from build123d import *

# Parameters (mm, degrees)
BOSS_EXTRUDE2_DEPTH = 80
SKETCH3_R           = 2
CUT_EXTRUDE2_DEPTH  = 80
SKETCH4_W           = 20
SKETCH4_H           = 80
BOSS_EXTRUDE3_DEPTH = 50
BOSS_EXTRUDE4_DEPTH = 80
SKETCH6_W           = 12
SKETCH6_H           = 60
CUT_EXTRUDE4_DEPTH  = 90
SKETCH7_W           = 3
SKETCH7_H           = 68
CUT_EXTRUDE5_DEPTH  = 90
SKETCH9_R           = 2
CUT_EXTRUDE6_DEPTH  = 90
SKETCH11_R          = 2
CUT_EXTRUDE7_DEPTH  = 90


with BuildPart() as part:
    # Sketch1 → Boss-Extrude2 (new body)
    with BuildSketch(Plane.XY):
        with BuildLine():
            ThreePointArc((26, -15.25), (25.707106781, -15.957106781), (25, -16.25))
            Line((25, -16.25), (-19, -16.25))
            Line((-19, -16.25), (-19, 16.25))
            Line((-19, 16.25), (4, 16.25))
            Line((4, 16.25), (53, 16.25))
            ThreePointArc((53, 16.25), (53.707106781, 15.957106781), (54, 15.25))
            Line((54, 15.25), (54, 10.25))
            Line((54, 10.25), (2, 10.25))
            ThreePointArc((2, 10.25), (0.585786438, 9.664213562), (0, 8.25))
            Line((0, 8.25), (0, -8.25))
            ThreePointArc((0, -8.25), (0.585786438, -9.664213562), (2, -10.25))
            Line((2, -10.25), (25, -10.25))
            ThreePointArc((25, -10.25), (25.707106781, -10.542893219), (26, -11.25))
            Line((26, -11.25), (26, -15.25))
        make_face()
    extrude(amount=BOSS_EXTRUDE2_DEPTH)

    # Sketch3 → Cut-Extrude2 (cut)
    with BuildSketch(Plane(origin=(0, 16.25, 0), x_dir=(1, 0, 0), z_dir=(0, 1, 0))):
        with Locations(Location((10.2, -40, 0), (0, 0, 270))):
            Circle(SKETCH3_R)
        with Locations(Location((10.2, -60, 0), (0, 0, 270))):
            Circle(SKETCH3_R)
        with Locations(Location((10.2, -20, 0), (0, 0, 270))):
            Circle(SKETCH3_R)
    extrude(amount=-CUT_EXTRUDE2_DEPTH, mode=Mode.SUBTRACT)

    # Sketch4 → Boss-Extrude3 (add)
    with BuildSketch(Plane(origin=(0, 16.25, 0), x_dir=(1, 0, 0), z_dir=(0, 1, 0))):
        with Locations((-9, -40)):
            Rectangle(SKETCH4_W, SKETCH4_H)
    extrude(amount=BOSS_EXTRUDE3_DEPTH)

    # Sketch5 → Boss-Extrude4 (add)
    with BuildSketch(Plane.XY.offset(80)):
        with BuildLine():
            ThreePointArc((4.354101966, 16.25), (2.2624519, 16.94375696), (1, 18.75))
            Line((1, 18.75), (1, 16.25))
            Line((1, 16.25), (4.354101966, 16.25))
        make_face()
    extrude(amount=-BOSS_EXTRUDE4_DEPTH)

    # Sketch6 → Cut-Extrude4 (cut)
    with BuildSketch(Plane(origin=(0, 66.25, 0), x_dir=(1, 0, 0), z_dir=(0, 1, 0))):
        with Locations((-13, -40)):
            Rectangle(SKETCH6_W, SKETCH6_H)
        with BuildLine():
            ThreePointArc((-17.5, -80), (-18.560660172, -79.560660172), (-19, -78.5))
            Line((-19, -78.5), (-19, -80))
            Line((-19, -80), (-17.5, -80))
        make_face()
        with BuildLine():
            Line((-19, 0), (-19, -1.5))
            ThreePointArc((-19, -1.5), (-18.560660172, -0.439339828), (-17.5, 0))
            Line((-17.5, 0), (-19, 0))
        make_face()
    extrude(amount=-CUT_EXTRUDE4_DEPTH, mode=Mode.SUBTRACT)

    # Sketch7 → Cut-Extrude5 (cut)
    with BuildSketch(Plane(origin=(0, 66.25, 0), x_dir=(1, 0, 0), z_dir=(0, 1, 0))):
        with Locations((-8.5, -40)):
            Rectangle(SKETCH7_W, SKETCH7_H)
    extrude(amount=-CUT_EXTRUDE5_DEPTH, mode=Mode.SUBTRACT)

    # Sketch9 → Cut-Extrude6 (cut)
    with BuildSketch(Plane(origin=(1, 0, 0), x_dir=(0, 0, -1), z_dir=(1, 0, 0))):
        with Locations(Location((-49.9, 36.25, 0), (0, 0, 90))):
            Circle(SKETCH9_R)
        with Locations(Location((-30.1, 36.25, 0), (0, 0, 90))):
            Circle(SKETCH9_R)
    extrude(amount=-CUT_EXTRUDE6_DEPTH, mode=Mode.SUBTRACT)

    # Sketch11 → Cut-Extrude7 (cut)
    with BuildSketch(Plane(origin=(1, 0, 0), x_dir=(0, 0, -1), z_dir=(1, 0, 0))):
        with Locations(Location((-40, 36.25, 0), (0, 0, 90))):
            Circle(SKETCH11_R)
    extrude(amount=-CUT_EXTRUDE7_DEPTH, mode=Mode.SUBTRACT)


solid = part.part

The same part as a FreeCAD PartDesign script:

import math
import FreeCAD as App
import Part
import Sketcher
Q = App.Units.Quantity

doc = App.newDocument("Part")
body = doc.addObject("PartDesign::Body", "Body")

sketch1 = body.newObject("Sketcher::SketchObject", "Sketch")
sketch1.AttachmentSupport = (doc.getObject("XY_Plane"), [""])
sketch1.MapMode = "FlatFace"
sketch1.addGeometry(Part.ArcOfCircle(Part.Circle(App.Vector(25, -15.25, 0), App.Vector(0, 0, 1), 1), math.radians(-90), math.radians(0)), False)
sketch1.addGeometry(Part.LineSegment(App.Vector(26, -15.25, 0), App.Vector(26, -11.25, 0)), False)
sketch1.addGeometry(Part.ArcOfCircle(Part.Circle(App.Vector(25, -11.25, 0), App.Vector(0, 0, 1), 1), math.radians(0), math.radians(90)), False)
sketch1.addGeometry(Part.LineSegment(App.Vector(25, -10.25, 0), App.Vector(2, -10.25, 0)), False)
sketch1.addGeometry(Part.ArcOfCircle(Part.Circle(App.Vector(2, -8.25, 0), App.Vector(0, 0, 1), 2), math.radians(-180), math.radians(-90)), False)
sketch1.addGeometry(Part.LineSegment(App.Vector(0, -8.25, 0), App.Vector(0, 8.25, 0)), False)
sketch1.addGeometry(Part.ArcOfCircle(Part.Circle(App.Vector(2, 8.25, 0), App.Vector(0, 0, 1), 2), math.radians(90), math.radians(180)), False)
sketch1.addGeometry(Part.LineSegment(App.Vector(2, 10.25, 0), App.Vector(54, 10.25, 0)), False)
sketch1.addGeometry(Part.LineSegment(App.Vector(54, 10.25, 0), App.Vector(54, 15.25, 0)), False)
sketch1.addGeometry(Part.ArcOfCircle(Part.Circle(App.Vector(53, 15.25, 0), App.Vector(0, 0, 1), 1), math.radians(0), math.radians(90)), False)
sketch1.addGeometry(Part.LineSegment(App.Vector(53, 16.25, 0), App.Vector(-19, 16.25, 0)), False)
sketch1.addGeometry(Part.LineSegment(App.Vector(-19, 16.25, 0), App.Vector(-19, -16.25, 0)), False)
sketch1.addGeometry(Part.LineSegment(App.Vector(-19, -16.25, 0), App.Vector(25, -16.25, 0)), False)
sketch1.addConstraint(Sketcher.Constraint("Tangent", 0, 2, 1, 1))
sketch1.addConstraint(Sketcher.Constraint("Tangent", 1, 2, 2, 1))
sketch1.addConstraint(Sketcher.Constraint("Tangent", 2, 2, 3, 1))
sketch1.addConstraint(Sketcher.Constraint("Tangent", 3, 2, 4, 2))
sketch1.addConstraint(Sketcher.Constraint("Tangent", 4, 1, 5, 1))
sketch1.addConstraint(Sketcher.Constraint("Tangent", 5, 2, 6, 2))
sketch1.addConstraint(Sketcher.Constraint("Tangent", 6, 1, 7, 1))
sketch1.addConstraint(Sketcher.Constraint("Coincident", 7, 2, 8, 1))
sketch1.addConstraint(Sketcher.Constraint("Tangent", 8, 2, 9, 1))
sketch1.addConstraint(Sketcher.Constraint("Tangent", 9, 2, 10, 1))
sketch1.addConstraint(Sketcher.Constraint("Coincident", 10, 2, 11, 1))
sketch1.addConstraint(Sketcher.Constraint("Coincident", 11, 2, 12, 1))
sketch1.addConstraint(Sketcher.Constraint("Tangent", 12, 2, 0, 1))
sketch1.addConstraint(Sketcher.Constraint("Vertical", 1))
sketch1.addConstraint(Sketcher.Constraint("Horizontal", 3))
sketch1.addConstraint(Sketcher.Constraint("Vertical", 5))
sketch1.addConstraint(Sketcher.Constraint("Horizontal", 7))
sketch1.addConstraint(Sketcher.Constraint("Vertical", 8))
sketch1.addConstraint(Sketcher.Constraint("Horizontal", 10))
sketch1.addConstraint(Sketcher.Constraint("Vertical", 11))
sketch1.addConstraint(Sketcher.Constraint("Horizontal", 12))
sketch1.addConstraint(Sketcher.Constraint("Equal", 0, 2))
sketch1.addConstraint(Sketcher.Constraint("Equal", 4, 6))
sketch1.addConstraint(Sketcher.Constraint("Equal", 2, 9))
sketch1.addConstraint(Sketcher.Constraint("Symmetric", 4, 1, 5, 2, -1, 1))
sketch1.addConstraint(Sketcher.Constraint("Radius", 0, Q("1 mm")))
sketch1.addConstraint(Sketcher.Constraint("Radius", 4, Q("2 mm")))
sketch1.addConstraint(Sketcher.Constraint("DistanceX", 3, 2, 3, 1, Q("23 mm")))
sketch1.addConstraint(Sketcher.Constraint("DistanceX", 7, 1, 7, 2, Q("52 mm")))
sketch1.addConstraint(Sketcher.Constraint("DistanceX", 10, 2, 10, 1, Q("72 mm")))
sketch1.addConstraint(Sketcher.Constraint("DistanceY", 1, 1, 1, 2, Q("4 mm")))
sketch1.addConstraint(Sketcher.Constraint("DistanceY", 8, 1, 8, 2, Q("5 mm")))
sketch1.addConstraint(Sketcher.Constraint("DistanceY", 5, 1, 5, 2, Q("16.5 mm")))
pad1 = body.newObject("PartDesign::Pad", "Pad")
pad1.Profile = sketch1
pad1.Length = 80

sketch2 = body.newObject("Sketcher::SketchObject", "Sketch001")
sketch2.AttachmentSupport = (doc.getObject("XZ_Plane"), [""])
sketch2.MapMode = "FlatFace"
sketch2.AttachmentOffset = App.Placement(App.Vector(0, 0, -16.25), App.Rotation())
sketch2.addGeometry(Part.Circle(App.Vector(10.2, 40, 0), App.Vector(0, 0, 1), 2), False)
sketch2.addGeometry(Part.Circle(App.Vector(10.2, 60, 0), App.Vector(0, 0, 1), 2), False)
sketch2.addGeometry(Part.Circle(App.Vector(10.2, 20, 0), App.Vector(0, 0, 1), 2), False)
sketch2.addConstraint(Sketcher.Constraint("Equal", 0, 1))
sketch2.addConstraint(Sketcher.Constraint("Equal", 1, 2))
sketch2.addConstraint(Sketcher.Constraint("Vertical", 0, 3, 1, 3))
sketch2.addConstraint(Sketcher.Constraint("Vertical", 1, 3, 2, 3))
sketch2.addConstraint(Sketcher.Constraint("Diameter", 0, Q("4 mm")))
sketch2.addConstraint(Sketcher.Constraint("DistanceY", -1, 1, 0, 3, Q("40 mm")))
sketch2.addConstraint(Sketcher.Constraint("DistanceY", -1, 1, 1, 3, Q("60 mm")))
sketch2.addConstraint(Sketcher.Constraint("DistanceY", -1, 1, 2, 3, Q("20 mm")))
sketch2.addConstraint(Sketcher.Constraint("DistanceX", -1, 1, 0, 3, Q("10.2 mm")))
pocket1 = body.newObject("PartDesign::Pocket", "Pocket")
pocket1.Profile = sketch2
pocket1.Length = 80
pocket1.Reversed = True

sketch3 = body.newObject("Sketcher::SketchObject", "Sketch002")
sketch3.AttachmentSupport = (doc.getObject("XZ_Plane"), [""])
sketch3.MapMode = "FlatFace"
sketch3.AttachmentOffset = App.Placement(App.Vector(0, 0, -16.25), App.Rotation())
sketch3.addGeometry(Part.LineSegment(App.Vector(-19, 0, 0), App.Vector(-19, 80, 0)), False)
sketch3.addGeometry(Part.LineSegment(App.Vector(-19, 80, 0), App.Vector(1, 80, 0)), False)
sketch3.addGeometry(Part.LineSegment(App.Vector(1, 80, 0), App.Vector(1, 0, 0)), False)
sketch3.addGeometry(Part.LineSegment(App.Vector(1, 0, 0), App.Vector(-19, 0, 0)), False)
sketch3.addConstraint(Sketcher.Constraint("Coincident", 0, 2, 1, 1))
sketch3.addConstraint(Sketcher.Constraint("Coincident", 1, 2, 2, 1))
sketch3.addConstraint(Sketcher.Constraint("Coincident", 2, 2, 3, 1))
sketch3.addConstraint(Sketcher.Constraint("Coincident", 3, 2, 0, 1))
sketch3.addConstraint(Sketcher.Constraint("Vertical", 0))
sketch3.addConstraint(Sketcher.Constraint("Horizontal", 1))
sketch3.addConstraint(Sketcher.Constraint("Vertical", 2))
sketch3.addConstraint(Sketcher.Constraint("Horizontal", 3))
sketch3.addConstraint(Sketcher.Constraint("PointOnObject", 2, 2, -1))
sketch3.addConstraint(Sketcher.Constraint("DistanceX", 1, 1, 1, 2, Q("20 mm")))
sketch3.addConstraint(Sketcher.Constraint("DistanceY", 0, 1, 0, 2, Q("80 mm")))
sketch3.addConstraint(Sketcher.Constraint("DistanceX", 0, 2, -1, 1, Q("19 mm")))
pad2 = body.newObject("PartDesign::Pad", "Pad001")
pad2.Profile = sketch3
pad2.Length = 50
pad2.Reversed = True

sketch4 = body.newObject("Sketcher::SketchObject", "Sketch003")
sketch4.AttachmentSupport = (doc.getObject("XY_Plane"), [""])
sketch4.MapMode = "FlatFace"
sketch4.AttachmentOffset = App.Placement(App.Vector(0, 0, 80), App.Rotation())
sketch4.addGeometry(Part.ArcOfCircle(Part.Circle(App.Vector(4.354102, 19.75, 0), App.Vector(0, 0, 1), 3.5), math.radians(-163.39845), math.radians(-90)), False)
sketch4.addGeometry(Part.LineSegment(App.Vector(1, 18.75, 0), App.Vector(1, 16.25, 0)), False)
sketch4.addGeometry(Part.LineSegment(App.Vector(1, 16.25, 0), App.Vector(4.354102, 16.25, 0)), False)
sketch4.addConstraint(Sketcher.Constraint("Coincident", 0, 1, 1, 1))
sketch4.addConstraint(Sketcher.Constraint("Coincident", 1, 2, 2, 1))
sketch4.addConstraint(Sketcher.Constraint("Tangent", 2, 2, 0, 2))
sketch4.addConstraint(Sketcher.Constraint("Vertical", 1))
sketch4.addConstraint(Sketcher.Constraint("Horizontal", 2))
sketch4.addConstraint(Sketcher.Constraint("Radius", 0, Q("3.5 mm")))
sketch4.addConstraint(Sketcher.Constraint("DistanceY", 1, 2, 1, 1, Q("2.5 mm")))
sketch4.addConstraint(Sketcher.Constraint("DistanceX", -1, 1, 0, 1, Q("1 mm")))
sketch4.addConstraint(Sketcher.Constraint("DistanceY", -1, 1, 0, 3, Q("19.75 mm")))
pad3 = body.newObject("PartDesign::Pad", "Pad002")
pad3.Profile = sketch4
pad3.Length = 80
pad3.Reversed = True

sketch5 = body.newObject("Sketcher::SketchObject", "Sketch004")
sketch5.AttachmentSupport = (doc.getObject("XZ_Plane"), [""])
sketch5.MapMode = "FlatFace"
sketch5.AttachmentOffset = App.Placement(App.Vector(0, 0, -66.25), App.Rotation())
sketch5.addGeometry(Part.LineSegment(App.Vector(-19, 10, 0), App.Vector(-19, 70, 0)), False)
sketch5.addGeometry(Part.LineSegment(App.Vector(-19, 70, 0), App.Vector(-7, 70, 0)), False)
sketch5.addGeometry(Part.LineSegment(App.Vector(-7, 70, 0), App.Vector(-7, 10, 0)), False)
sketch5.addGeometry(Part.LineSegment(App.Vector(-7, 10, 0), App.Vector(-19, 10, 0)), False)
sketch5.addGeometry(Part.ArcOfCircle(Part.Circle(App.Vector(-17.5, 78.5, 0), App.Vector(0, 0, 1), 1.5), math.radians(90), math.radians(180)), False)
sketch5.addGeometry(Part.LineSegment(App.Vector(-19, 78.5, 0), App.Vector(-19, 80, 0)), False)
sketch5.addGeometry(Part.LineSegment(App.Vector(-19, 80, 0), App.Vector(-17.5, 80, 0)), False)
sketch5.addGeometry(Part.LineSegment(App.Vector(-19, 0, 0), App.Vector(-19, 1.5, 0)), False)
sketch5.addGeometry(Part.ArcOfCircle(Part.Circle(App.Vector(-17.5, 1.5, 0), App.Vector(0, 0, 1), 1.5), math.radians(180), math.radians(270)), False)
sketch5.addGeometry(Part.LineSegment(App.Vector(-17.5, 0, 0), App.Vector(-19, 0, 0)), False)
sketch5.addConstraint(Sketcher.Constraint("Coincident", 0, 2, 1, 1))
sketch5.addConstraint(Sketcher.Constraint("Coincident", 1, 2, 2, 1))
sketch5.addConstraint(Sketcher.Constraint("Coincident", 2, 2, 3, 1))
sketch5.addConstraint(Sketcher.Constraint("Coincident", 3, 2, 0, 1))
sketch5.addConstraint(Sketcher.Constraint("Tangent", 4, 2, 5, 1))
sketch5.addConstraint(Sketcher.Constraint("Coincident", 5, 2, 6, 1))
sketch5.addConstraint(Sketcher.Constraint("Tangent", 6, 2, 4, 1))
sketch5.addConstraint(Sketcher.Constraint("Tangent", 7, 2, 8, 1))
sketch5.addConstraint(Sketcher.Constraint("Tangent", 8, 2, 9, 1))
sketch5.addConstraint(Sketcher.Constraint("Coincident", 9, 2, 7, 1))
sketch5.addConstraint(Sketcher.Constraint("Vertical", 0))
sketch5.addConstraint(Sketcher.Constraint("Horizontal", 1))
sketch5.addConstraint(Sketcher.Constraint("Vertical", 2))
sketch5.addConstraint(Sketcher.Constraint("Horizontal", 3))
sketch5.addConstraint(Sketcher.Constraint("Vertical", 5))
sketch5.addConstraint(Sketcher.Constraint("Horizontal", 6))
sketch5.addConstraint(Sketcher.Constraint("Vertical", 7))
sketch5.addConstraint(Sketcher.Constraint("Horizontal", 9))
sketch5.addConstraint(Sketcher.Constraint("Equal", 4, 8))
sketch5.addConstraint(Sketcher.Constraint("PointOnObject", 8, 2, -1))
sketch5.addConstraint(Sketcher.Constraint("Vertical", 4, 3, 8, 3))
sketch5.addConstraint(Sketcher.Constraint("Vertical", 3, 2, 4, 2))
sketch5.addConstraint(Sketcher.Constraint("Radius", 4, Q("1.5 mm")))
sketch5.addConstraint(Sketcher.Constraint("DistanceX", 1, 1, 1, 2, Q("12 mm")))
sketch5.addConstraint(Sketcher.Constraint("DistanceY", 0, 1, 0, 2, Q("60 mm")))
sketch5.addConstraint(Sketcher.Constraint("DistanceX", 0, 2, -1, 1, Q("19 mm")))
sketch5.addConstraint(Sketcher.Constraint("DistanceY", -1, 1, 0, 2, Q("70 mm")))
sketch5.addConstraint(Sketcher.Constraint("DistanceY", -1, 1, 5, 2, Q("80 mm")))
pocket2 = body.newObject("PartDesign::Pocket", "Pocket001")
pocket2.Profile = sketch5
pocket2.Length = 90
pocket2.Reversed = True

sketch6 = body.newObject("Sketcher::SketchObject", "Sketch005")
sketch6.AttachmentSupport = (doc.getObject("XZ_Plane"), [""])
sketch6.MapMode = "FlatFace"
sketch6.AttachmentOffset = App.Placement(App.Vector(0, 0, -66.25), App.Rotation())
sketch6.addGeometry(Part.LineSegment(App.Vector(-10, 6, 0), App.Vector(-10, 74, 0)), False)
sketch6.addGeometry(Part.LineSegment(App.Vector(-10, 74, 0), App.Vector(-7, 74, 0)), False)
sketch6.addGeometry(Part.LineSegment(App.Vector(-7, 74, 0), App.Vector(-7, 6, 0)), False)
sketch6.addGeometry(Part.LineSegment(App.Vector(-7, 6, 0), App.Vector(-10, 6, 0)), False)
sketch6.addConstraint(Sketcher.Constraint("Coincident", 0, 2, 1, 1))
sketch6.addConstraint(Sketcher.Constraint("Coincident", 1, 2, 2, 1))
sketch6.addConstraint(Sketcher.Constraint("Coincident", 2, 2, 3, 1))
sketch6.addConstraint(Sketcher.Constraint("Coincident", 3, 2, 0, 1))
sketch6.addConstraint(Sketcher.Constraint("Vertical", 0))
sketch6.addConstraint(Sketcher.Constraint("Horizontal", 1))
sketch6.addConstraint(Sketcher.Constraint("Vertical", 2))
sketch6.addConstraint(Sketcher.Constraint("Horizontal", 3))
sketch6.addConstraint(Sketcher.Constraint("DistanceX", 1, 1, 1, 2, Q("3 mm")))
sketch6.addConstraint(Sketcher.Constraint("DistanceY", 0, 1, 0, 2, Q("68 mm")))
sketch6.addConstraint(Sketcher.Constraint("DistanceX", 0, 2, -1, 1, Q("10 mm")))
sketch6.addConstraint(Sketcher.Constraint("DistanceY", -1, 1, 0, 2, Q("74 mm")))
pocket3 = body.newObject("PartDesign::Pocket", "Pocket002")
pocket3.Profile = sketch6
pocket3.Length = 90
pocket3.Reversed = True

sketch7 = body.newObject("Sketcher::SketchObject", "Sketch006")
sketch7.AttachmentSupport = (doc.getObject("YZ_Plane"), [""])
sketch7.MapMode = "FlatFace"
sketch7.AttachmentOffset = App.Placement(App.Vector(0, 0, 1), App.Rotation())
sketch7.addGeometry(Part.Circle(App.Vector(36.25, 49.9, 0), App.Vector(0, 0, 1), 2), False)
sketch7.addGeometry(Part.Circle(App.Vector(36.25, 30.1, 0), App.Vector(0, 0, 1), 2), False)
sketch7.addConstraint(Sketcher.Constraint("Equal", 0, 1))
sketch7.addConstraint(Sketcher.Constraint("Vertical", 0, 3, 1, 3))
sketch7.addConstraint(Sketcher.Constraint("Diameter", 0, Q("4 mm")))
sketch7.addConstraint(Sketcher.Constraint("DistanceY", -1, 1, 0, 3, Q("49.9 mm")))
sketch7.addConstraint(Sketcher.Constraint("DistanceY", -1, 1, 1, 3, Q("30.1 mm")))
sketch7.addConstraint(Sketcher.Constraint("DistanceX", -1, 1, 0, 3, Q("36.25 mm")))
pocket4 = body.newObject("PartDesign::Pocket", "Pocket003")
pocket4.Profile = sketch7
pocket4.Length = 90

sketch8 = body.newObject("Sketcher::SketchObject", "Sketch007")
sketch8.AttachmentSupport = (doc.getObject("YZ_Plane"), [""])
sketch8.MapMode = "FlatFace"
sketch8.AttachmentOffset = App.Placement(App.Vector(0, 0, 1), App.Rotation())
sketch8.addGeometry(Part.Circle(App.Vector(36.25, 40, 0), App.Vector(0, 0, 1), 2), False)
sketch8.addConstraint(Sketcher.Constraint("Diameter", 0, Q("4 mm")))
sketch8.addConstraint(Sketcher.Constraint("DistanceY", -1, 1, 0, 3, Q("40 mm")))
sketch8.addConstraint(Sketcher.Constraint("DistanceX", -1, 1, 0, 3, Q("36.25 mm")))
pocket5 = body.newObject("PartDesign::Pocket", "Pocket004")
pocket5.Profile = sketch8
pocket5.Length = 90

doc.recompute()
